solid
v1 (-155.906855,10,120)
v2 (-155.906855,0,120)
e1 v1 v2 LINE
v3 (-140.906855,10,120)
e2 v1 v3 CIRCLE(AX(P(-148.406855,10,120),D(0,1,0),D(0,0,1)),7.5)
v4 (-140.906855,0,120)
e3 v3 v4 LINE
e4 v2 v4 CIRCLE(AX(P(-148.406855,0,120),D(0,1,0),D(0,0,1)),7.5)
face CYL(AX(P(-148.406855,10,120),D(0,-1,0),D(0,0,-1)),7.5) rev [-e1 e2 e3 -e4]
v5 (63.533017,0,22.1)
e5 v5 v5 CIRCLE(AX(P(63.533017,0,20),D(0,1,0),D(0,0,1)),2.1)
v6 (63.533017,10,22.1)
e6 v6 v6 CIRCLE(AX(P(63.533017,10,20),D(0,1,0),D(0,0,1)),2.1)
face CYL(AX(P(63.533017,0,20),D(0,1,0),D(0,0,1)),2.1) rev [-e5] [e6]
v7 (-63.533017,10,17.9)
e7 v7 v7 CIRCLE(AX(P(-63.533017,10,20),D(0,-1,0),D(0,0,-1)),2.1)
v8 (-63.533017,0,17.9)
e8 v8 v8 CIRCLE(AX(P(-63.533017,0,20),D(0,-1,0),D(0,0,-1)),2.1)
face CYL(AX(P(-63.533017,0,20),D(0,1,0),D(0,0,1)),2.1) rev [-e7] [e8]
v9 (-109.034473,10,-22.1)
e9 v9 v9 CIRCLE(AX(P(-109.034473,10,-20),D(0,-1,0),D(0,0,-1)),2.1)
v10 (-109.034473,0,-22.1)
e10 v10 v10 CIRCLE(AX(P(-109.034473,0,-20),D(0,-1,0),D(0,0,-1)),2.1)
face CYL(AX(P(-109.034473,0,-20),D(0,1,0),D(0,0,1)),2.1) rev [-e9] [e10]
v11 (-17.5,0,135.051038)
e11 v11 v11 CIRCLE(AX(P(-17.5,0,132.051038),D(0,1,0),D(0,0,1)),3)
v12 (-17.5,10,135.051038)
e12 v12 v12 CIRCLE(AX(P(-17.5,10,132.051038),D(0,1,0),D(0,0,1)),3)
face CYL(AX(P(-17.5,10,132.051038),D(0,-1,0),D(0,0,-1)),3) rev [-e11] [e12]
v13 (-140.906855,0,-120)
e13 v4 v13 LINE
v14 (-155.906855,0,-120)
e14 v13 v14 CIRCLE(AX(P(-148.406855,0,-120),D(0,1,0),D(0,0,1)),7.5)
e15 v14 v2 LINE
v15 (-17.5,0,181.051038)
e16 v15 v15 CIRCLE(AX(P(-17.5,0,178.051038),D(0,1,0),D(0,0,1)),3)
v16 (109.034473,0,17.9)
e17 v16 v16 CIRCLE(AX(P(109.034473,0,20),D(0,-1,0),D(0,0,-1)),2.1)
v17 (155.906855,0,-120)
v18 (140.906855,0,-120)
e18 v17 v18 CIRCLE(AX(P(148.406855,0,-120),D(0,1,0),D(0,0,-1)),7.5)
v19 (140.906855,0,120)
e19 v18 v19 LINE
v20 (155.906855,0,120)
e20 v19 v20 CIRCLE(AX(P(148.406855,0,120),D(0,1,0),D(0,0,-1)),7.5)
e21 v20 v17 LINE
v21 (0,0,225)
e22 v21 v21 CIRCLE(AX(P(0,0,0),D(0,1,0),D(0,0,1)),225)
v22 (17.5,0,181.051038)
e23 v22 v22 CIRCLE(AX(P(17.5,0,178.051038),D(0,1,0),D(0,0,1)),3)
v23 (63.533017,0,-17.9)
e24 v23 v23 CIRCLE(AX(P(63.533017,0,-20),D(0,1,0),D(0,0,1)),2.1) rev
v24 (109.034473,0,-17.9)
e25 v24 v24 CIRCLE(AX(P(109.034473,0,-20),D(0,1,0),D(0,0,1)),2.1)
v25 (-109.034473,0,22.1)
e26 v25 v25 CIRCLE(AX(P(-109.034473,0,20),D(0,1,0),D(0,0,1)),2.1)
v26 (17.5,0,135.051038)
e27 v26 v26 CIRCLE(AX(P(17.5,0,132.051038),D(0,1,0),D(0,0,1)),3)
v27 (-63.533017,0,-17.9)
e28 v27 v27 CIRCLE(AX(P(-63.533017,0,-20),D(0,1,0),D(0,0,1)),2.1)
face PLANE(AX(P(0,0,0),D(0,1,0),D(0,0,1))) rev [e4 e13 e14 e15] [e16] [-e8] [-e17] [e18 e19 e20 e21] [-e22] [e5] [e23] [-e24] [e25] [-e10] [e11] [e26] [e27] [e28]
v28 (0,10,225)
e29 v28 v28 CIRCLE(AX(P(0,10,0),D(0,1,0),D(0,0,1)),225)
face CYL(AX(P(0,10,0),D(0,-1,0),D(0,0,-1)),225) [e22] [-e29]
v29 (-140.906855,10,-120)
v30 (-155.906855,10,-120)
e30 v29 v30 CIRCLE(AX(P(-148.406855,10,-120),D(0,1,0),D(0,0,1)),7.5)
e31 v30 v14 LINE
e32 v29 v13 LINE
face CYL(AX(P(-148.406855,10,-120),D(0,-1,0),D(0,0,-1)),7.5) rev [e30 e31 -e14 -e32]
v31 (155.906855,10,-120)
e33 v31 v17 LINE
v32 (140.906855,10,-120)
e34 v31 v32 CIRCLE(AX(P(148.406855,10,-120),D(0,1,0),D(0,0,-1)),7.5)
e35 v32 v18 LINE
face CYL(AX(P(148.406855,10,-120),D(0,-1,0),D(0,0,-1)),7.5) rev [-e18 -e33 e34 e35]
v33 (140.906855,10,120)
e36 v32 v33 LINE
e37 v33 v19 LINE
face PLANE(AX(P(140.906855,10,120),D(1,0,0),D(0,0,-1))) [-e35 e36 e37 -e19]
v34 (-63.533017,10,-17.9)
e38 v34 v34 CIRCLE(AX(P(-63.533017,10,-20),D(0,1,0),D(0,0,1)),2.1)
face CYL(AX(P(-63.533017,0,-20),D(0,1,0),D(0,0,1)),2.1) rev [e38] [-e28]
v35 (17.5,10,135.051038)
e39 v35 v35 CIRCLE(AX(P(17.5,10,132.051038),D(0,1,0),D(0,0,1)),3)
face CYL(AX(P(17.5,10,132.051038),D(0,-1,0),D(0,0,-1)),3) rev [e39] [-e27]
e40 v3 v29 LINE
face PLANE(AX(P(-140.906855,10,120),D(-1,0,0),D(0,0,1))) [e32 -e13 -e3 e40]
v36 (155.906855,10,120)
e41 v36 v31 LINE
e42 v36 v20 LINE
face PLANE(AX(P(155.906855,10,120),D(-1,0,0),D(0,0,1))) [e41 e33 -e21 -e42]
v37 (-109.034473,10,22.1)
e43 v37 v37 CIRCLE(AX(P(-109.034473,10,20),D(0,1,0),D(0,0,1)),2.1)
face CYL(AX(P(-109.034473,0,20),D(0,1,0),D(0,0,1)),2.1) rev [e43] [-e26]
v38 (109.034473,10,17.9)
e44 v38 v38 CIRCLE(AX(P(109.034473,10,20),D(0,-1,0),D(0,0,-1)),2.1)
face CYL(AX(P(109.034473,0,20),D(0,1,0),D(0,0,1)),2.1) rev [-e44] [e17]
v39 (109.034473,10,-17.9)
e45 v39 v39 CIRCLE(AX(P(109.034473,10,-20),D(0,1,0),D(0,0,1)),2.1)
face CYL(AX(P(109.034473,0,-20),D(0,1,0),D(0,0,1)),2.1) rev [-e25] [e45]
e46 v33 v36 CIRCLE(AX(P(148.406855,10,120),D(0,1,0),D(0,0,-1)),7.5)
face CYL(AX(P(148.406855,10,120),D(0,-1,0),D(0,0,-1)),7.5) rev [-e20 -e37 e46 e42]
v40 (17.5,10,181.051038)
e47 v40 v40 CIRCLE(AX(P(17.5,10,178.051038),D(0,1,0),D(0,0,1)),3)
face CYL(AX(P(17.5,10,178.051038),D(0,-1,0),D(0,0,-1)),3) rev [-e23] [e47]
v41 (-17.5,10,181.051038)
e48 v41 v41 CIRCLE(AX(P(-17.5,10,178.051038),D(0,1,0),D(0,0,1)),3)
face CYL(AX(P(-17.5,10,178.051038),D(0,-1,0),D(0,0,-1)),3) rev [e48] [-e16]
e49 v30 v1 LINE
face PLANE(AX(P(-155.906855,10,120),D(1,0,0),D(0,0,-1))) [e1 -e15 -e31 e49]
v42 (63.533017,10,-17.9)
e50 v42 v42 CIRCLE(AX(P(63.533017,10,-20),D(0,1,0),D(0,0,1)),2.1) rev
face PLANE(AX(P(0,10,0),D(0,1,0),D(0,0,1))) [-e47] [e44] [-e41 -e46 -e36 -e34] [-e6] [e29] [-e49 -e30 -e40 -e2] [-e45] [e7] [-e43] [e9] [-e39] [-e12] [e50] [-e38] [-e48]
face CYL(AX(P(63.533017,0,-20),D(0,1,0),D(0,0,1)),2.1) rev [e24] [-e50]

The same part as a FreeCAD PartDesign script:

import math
import FreeCAD as App
import Part
import Sketcher
from FreeCAD import Vector
Q = App.Units.Quantity

doc = App.newDocument("Part")
body = doc.addObject("PartDesign::Body", "Body")

# Sketch on XZ plane
sketch1 = body.newObject("Sketcher::SketchObject", "Sketch")
sketch1.AttachmentSupport = (doc.getObject("XZ_Plane"), [""])
sketch1.MapMode = "FlatFace"
sketch1.addGeometry([
    Part.Circle(Vector(0, 0, 0), Vector(0, 0, 1), 225),  # 0
    Part.ArcOfCircle(Part.Circle(Vector(-148.4, 120, 0), Vector(0, 0, 1), 7.5), math.radians(0), math.radians(180)),  # 1
    Part.LineSegment(Vector(-155.9, 120, 0), Vector(-155.9, -120, 0)),  # 2
    Part.ArcOfCircle(Part.Circle(Vector(-148.4, -120, 0), Vector(0, 0, 1), 7.5), math.radians(180), math.radians(360)),  # 3
    Part.LineSegment(Vector(-140.9, -120, 0), Vector(-140.9, 120, 0)),  # 4
    Part.Circle(Vector(-17.5, 132.1, 0), Vector(0, 0, 1), 3),  # 5
    Part.Circle(Vector(-17.5, 178.1, 0), Vector(0, 0, 1), 3),  # 6
    Part.LineSegment(Vector(155.9, -120, 0), Vector(155.9, 120, 0)),  # 7
    Part.ArcOfCircle(Part.Circle(Vector(148.4, 120, 0), Vector(0, 0, 1), 7.5), math.radians(0), math.radians(180)),  # 8
    Part.LineSegment(Vector(140.9, 120, 0), Vector(140.9, -120, 0)),  # 9
    Part.ArcOfCircle(Part.Circle(Vector(148.4, -120, 0), Vector(0, 0, 1), 7.5), math.radians(180), math.radians(360)),  # 10
    Part.Circle(Vector(17.5, 132.1, 0), Vector(0, 0, 1), 3),  # 11
    Part.Circle(Vector(17.5, 178.1, 0), Vector(0, 0, 1), 3),  # 12
], False)
sketch1.addConstraint([
    Sketcher.Constraint("Tangent", 1, 2, 2, 1),
    Sketcher.Constraint("Tangent", 2, 2, 3, 1),
    Sketcher.Constraint("Tangent", 3, 2, 4, 1),
    Sketcher.Constraint("Tangent", 4, 2, 1, 1),
    Sketcher.Constraint("Tangent", 7, 2, 8, 1),
    Sketcher.Constraint("Tangent", 8, 2, 9, 1),
    Sketcher.Constraint("Tangent", 9, 2, 10, 1),
    Sketcher.Constraint("Tangent", 10, 2, 7, 1),
    Sketcher.Constraint("Vertical", 2),
    Sketcher.Constraint("Vertical", 4),
    Sketcher.Constraint("Vertical", 7),
    Sketcher.Constraint("Vertical", 9),
    Sketcher.Constraint("Coincident", 0, 3, -1, 1),
    Sketcher.Constraint("Equal", 5, 6),
    Sketcher.Constraint("Equal", 3, 8),
    Sketcher.Constraint("Equal", 6, 11),
    Sketcher.Constraint("Equal", 11, 12),
    Sketcher.Constraint("Symmetric", 3, 3, 8, 3, -1, 1),
    Sketcher.Constraint("Symmetric", 5, 3, 11, 3, -2),
    Sketcher.Constraint("Symmetric", 6, 3, 12, 3, -2),
    Sketcher.Constraint("Horizontal", 1, 3, 8, 3),
    Sketcher.Constraint("Horizontal", 3, 3, 10, 3),
    Sketcher.Constraint("Vertical", 5, 3, 6, 3),
    Sketcher.Constraint("Diameter", 0, Q("450 mm")),
    Sketcher.Constraint("Diameter", 5, Q("6 mm")),
    Sketcher.Constraint("Radius", 1, Q("7.5 mm")),
    Sketcher.Constraint("DistanceY", 2, 2, 2, 1, Q("240 mm")),
    Sketcher.Constraint("DistanceY", 5, 3, 6, 3, Q("46 mm")),
    Sketcher.Constraint("DistanceX", 5, 3, 11, 3, Q("35 mm")),
    Sketcher.Constraint("DistanceY", -1, 1, 5, 3, Q("132.051038 mm")),
    Sketcher.Constraint("DistanceX", 1, 3, 8, 3, Q("296.813709 mm")),
])
pad1 = body.newObject("PartDesign::Pad", "Pad")
pad1.Profile = sketch1
pad1.Length = 10
pad1.Reversed = True

# Sketch on XZ plane
sketch2 = body.newObject("Sketcher::SketchObject", "Sketch001")
sketch2.AttachmentSupport = (doc.getObject("XZ_Plane"), [""])
sketch2.MapMode = "FlatFace"
sketch2.AttachmentOffset = App.Placement(Vector(0, 0, -10), App.Rotation())
sketch2.addGeometry([
    Part.Circle(Vector(63.5, 20, 0), Vector(0, 0, 1), 2.1),  # 0
    Part.Circle(Vector(63.5, -20, 0), Vector(0, 0, 1), 2.1),  # 1
    Part.Circle(Vector(-63.5, 20, 0), Vector(0, 0, 1), 2.1),  # 2
    Part.Circle(Vector(-109, 20, 0), Vector(0, 0, 1), 2.1),  # 3
    Part.Circle(Vector(-63.5, -20, 0), Vector(0, 0, 1), 2.1),  # 4
    Part.Circle(Vector(-109, -20, 0), Vector(0, 0, 1), 2.1),  # 5
    Part.Circle(Vector(109, 20, 0), Vector(0, 0, 1), 2.1),  # 6
    Part.Circle(Vector(109, -20, 0), Vector(0, 0, 1), 2.1),  # 7
], False)
sketch2.addConstraint([
    Sketcher.Constraint("Equal", 0, 1),
    Sketcher.Constraint("Equal", 1, 2),
    Sketcher.Constraint("Equal", 2, 3),
    Sketcher.Constraint("Equal", 3, 4),
    Sketcher.Constraint("Equal", 4, 5),
    Sketcher.Constraint("Equal", 5, 6),
    Sketcher.Constraint("Equal", 6, 7),
    Sketcher.Constraint("Symmetric", 1, 3, 2, 3, -1, 1),
    Sketcher.Constraint("Symmetric", 0, 3, 4, 3, -1, 1),
    Sketcher.Constraint("Symmetric", 5, 3, 6, 3, -1, 1),
    Sketcher.Constraint("Symmetric", 3, 3, 7, 3, -1, 1),
    Sketcher.Constraint("Symmetric", 0, 3, 2, 3, -2),
    Sketcher.Constraint("Symmetric", 3, 3, 6, 3, -2),
    Sketcher.Constraint("Horizontal", 2, 3, 3, 3),
    Sketcher.Constraint("Diameter", 0, Q("4.2 mm")),
    Sketcher.Constraint("DistanceY", -1, 1, 0, 3, Q("20 mm")),
    Sketcher.Constraint("DistanceX", 3, 3, 0, 3, Q("172.56749 mm")),
    Sketcher.Constraint("DistanceX", -1, 1, 0, 3, Q("63.533017 mm")),
])
pocket1 = body.newObject("PartDesign::Pocket", "Pocket")
pocket1.Profile = sketch2
pocket1.Length = 10
pocket1.Reversed = True

doc.recompute()
